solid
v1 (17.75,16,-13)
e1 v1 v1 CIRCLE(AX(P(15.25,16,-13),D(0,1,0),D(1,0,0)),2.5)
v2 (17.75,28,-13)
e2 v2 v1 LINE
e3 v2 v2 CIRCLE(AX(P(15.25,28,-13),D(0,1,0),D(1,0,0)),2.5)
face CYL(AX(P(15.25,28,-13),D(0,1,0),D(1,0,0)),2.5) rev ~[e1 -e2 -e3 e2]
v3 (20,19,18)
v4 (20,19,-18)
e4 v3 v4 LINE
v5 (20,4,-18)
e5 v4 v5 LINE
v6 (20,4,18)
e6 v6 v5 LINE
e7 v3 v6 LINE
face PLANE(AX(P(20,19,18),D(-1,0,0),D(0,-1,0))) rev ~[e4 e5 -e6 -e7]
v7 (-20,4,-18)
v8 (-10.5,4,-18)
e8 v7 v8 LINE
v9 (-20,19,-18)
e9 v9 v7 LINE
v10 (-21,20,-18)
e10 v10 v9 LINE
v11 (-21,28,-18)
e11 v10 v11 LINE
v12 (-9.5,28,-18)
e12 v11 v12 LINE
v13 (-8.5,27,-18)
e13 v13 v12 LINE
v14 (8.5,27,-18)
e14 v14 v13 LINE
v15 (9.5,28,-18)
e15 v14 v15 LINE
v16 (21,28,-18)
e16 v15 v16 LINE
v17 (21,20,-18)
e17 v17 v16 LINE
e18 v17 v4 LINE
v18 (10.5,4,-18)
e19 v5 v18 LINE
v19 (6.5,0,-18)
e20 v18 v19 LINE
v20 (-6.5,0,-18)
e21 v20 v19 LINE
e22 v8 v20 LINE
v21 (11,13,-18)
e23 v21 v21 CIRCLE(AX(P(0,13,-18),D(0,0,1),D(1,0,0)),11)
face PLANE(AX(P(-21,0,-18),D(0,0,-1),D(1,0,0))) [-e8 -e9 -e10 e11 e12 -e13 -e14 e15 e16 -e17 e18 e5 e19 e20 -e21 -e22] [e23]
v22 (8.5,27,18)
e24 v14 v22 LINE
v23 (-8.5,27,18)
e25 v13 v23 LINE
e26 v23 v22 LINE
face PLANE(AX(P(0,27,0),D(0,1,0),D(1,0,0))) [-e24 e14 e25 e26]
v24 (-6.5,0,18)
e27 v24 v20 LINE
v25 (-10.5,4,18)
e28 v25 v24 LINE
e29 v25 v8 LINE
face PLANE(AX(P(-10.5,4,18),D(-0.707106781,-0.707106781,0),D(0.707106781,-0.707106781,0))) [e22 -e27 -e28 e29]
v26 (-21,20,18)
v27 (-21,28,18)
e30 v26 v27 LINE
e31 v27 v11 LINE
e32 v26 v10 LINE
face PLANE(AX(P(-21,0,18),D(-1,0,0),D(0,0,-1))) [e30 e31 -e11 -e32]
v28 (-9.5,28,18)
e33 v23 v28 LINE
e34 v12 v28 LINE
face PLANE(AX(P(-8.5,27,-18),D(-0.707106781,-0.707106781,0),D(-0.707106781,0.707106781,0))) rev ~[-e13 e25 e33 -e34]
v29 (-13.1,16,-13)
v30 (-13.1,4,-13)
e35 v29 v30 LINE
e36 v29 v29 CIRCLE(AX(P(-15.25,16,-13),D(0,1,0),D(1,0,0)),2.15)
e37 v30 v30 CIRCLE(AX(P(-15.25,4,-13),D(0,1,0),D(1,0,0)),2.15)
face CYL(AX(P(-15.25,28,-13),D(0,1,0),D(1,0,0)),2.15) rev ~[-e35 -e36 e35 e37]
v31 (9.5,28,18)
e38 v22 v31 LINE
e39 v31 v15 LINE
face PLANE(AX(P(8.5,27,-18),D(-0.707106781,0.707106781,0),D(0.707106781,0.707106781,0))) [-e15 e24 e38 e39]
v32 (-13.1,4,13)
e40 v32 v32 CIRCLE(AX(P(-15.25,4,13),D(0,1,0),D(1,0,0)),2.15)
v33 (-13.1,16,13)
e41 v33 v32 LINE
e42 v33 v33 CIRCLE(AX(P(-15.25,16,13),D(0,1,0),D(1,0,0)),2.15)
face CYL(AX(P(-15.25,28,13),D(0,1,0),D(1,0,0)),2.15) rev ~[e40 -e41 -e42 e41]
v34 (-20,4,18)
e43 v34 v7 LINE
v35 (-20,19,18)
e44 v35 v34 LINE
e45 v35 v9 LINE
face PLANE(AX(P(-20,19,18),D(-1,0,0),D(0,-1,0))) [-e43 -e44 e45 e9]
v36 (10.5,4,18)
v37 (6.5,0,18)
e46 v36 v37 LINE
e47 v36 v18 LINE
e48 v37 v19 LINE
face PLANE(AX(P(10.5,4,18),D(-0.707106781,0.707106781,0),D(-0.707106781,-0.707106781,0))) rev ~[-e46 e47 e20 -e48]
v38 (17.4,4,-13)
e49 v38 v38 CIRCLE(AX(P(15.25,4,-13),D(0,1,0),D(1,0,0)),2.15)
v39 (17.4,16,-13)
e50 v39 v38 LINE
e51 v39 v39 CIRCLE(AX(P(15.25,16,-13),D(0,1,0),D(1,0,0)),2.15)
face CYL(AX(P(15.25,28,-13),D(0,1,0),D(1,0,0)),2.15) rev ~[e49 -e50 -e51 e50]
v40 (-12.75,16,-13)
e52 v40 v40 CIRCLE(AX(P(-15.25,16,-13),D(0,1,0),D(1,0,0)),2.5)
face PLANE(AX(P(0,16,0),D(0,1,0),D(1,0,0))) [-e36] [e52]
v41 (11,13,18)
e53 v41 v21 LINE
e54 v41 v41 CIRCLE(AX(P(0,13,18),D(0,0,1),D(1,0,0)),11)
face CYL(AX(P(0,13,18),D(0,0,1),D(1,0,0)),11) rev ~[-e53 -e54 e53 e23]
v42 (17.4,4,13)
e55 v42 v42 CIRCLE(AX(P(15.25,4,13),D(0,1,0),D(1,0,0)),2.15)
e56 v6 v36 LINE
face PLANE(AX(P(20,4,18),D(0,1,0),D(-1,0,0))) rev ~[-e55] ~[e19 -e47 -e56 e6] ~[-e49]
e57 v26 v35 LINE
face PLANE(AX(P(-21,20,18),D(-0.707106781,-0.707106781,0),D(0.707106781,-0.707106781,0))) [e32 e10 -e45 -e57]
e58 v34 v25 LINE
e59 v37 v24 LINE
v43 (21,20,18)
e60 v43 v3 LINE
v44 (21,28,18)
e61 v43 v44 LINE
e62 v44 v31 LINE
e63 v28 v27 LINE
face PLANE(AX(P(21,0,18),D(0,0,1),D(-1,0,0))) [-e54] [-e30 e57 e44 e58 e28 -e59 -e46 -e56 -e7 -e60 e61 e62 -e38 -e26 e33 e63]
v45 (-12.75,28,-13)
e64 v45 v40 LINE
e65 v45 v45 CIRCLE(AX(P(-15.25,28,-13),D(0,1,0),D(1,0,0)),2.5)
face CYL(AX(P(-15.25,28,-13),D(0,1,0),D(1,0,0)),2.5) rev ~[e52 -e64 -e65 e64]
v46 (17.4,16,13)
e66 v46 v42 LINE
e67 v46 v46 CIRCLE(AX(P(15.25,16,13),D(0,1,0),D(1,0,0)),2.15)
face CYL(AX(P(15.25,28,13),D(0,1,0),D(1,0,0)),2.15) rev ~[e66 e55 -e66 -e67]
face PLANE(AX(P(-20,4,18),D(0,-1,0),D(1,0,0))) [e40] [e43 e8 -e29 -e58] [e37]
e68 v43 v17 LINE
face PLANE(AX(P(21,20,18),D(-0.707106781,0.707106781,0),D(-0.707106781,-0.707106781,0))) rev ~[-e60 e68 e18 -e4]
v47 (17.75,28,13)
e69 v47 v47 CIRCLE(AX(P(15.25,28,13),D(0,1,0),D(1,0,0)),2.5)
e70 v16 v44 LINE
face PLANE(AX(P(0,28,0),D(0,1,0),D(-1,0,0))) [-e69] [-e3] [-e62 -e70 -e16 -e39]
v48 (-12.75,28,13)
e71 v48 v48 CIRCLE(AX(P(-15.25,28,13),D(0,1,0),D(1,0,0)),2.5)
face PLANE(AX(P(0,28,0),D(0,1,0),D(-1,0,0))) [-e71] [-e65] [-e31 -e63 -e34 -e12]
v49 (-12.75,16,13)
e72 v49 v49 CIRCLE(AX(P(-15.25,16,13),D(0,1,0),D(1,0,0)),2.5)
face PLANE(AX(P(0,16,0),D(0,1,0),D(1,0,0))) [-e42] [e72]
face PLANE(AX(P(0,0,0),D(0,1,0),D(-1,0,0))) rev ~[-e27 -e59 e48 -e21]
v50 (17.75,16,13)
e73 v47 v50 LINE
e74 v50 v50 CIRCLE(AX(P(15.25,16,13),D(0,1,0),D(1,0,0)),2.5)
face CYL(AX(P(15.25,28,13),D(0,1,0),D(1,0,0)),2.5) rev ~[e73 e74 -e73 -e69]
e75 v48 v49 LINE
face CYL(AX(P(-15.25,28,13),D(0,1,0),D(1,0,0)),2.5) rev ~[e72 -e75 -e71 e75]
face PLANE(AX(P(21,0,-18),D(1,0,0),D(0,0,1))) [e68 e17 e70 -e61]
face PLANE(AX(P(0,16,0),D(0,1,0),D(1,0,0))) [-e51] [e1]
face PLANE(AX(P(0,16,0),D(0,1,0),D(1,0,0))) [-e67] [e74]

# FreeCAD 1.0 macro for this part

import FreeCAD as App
import Part
import Sketcher

V = App.Vector


def add_polygon(sketch, points):
    """Adds a closed chain of lines whose ends are joined by coincident constraints."""
    first, n = sketch.GeometryCount, len(points)
    for a, b in zip(points, points[1:] + points[:1]):
        sketch.addGeometry(Part.LineSegment(App.Vector(*a, 0), App.Vector(*b, 0)), False)
    for i in range(n):
        sketch.addConstraint(Sketcher.Constraint("Coincident", first + i, 2, first + (i + 1) % n, 1))

doc = App.newDocument("Part")
body = doc.addObject("PartDesign::Body", "Body")

# Sketch on XZ plane
sketch1 = body.newObject("Sketcher::SketchObject", "Sketch")
sketch1.AttachmentSupport = (doc.getObject("XZ_Plane"), [""])
sketch1.MapMode = "FlatFace"
add_polygon(sketch1, [(21, -18), (-21, -18), (-21, 18), (21, 18)])  # lines 0-3
sketch1.addConstraint([
    Sketcher.Constraint("Horizontal", 0),
    Sketcher.Constraint("Vertical", 1),
    Sketcher.Constraint("Horizontal", 2),
    Sketcher.Constraint("Vertical", 3),
    Sketcher.Constraint("Symmetric", 0, 2, 2, 2, -1, 1),
    Sketcher.Constraint("DistanceX", 0, 2, 0, 1, 42.0),
    Sketcher.Constraint("DistanceY", 1, 1, 1, 2, 36.0),
])
pad1 = body.newObject("PartDesign::Pad", "Pad")
pad1.Profile = sketch1
pad1.Length = 28
pad1.Reversed = True

# Sketch on XY plane
sketch2 = body.newObject("Sketcher::SketchObject", "Sketch001")
sketch2.AttachmentSupport = (doc.getObject("XY_Plane"), [""])
sketch2.MapMode = "FlatFace"
sketch2.AttachmentOffset = App.Placement(V(0, 0, 18), App.Rotation())
sketch2.addGeometry(Part.Circle(V(0, 13, 0), V(0, 0, 1), 11), False)
sketch2.addConstraint([
    Sketcher.Constraint("PointOnObject", 0, 3, -2),
    Sketcher.Constraint("Diameter", 0, 22.0),
    Sketcher.Constraint("DistanceY", -1, 1, 0, 3, 13.0),
])
pocket1 = body.newObject("PartDesign::Pocket", "Pocket")
pocket1.Profile = sketch2
pocket1.Type = "UpToFirst"

# Sketch on XZ plane
sketch3 = body.newObject("Sketcher::SketchObject", "Sketch002")
sketch3.AttachmentSupport = (doc.getObject("XZ_Plane"), [""])
sketch3.MapMode = "FlatFace"
sketch3.AttachmentOffset = App.Placement(V(0, 0, -28), App.Rotation())
sketch3.addGeometry([
    Part.Circle(V(-15.25, -13, 0), V(0, 0, 1), 2.15),
    Part.Circle(V(-15.25, 13, 0), V(0, 0, 1), 2.15),
    Part.Circle(V(15.25, -13, 0), V(0, 0, 1), 2.15),
    Part.Circle(V(15.25, 13, 0), V(0, 0, 1), 2.15),
], False)
sketch3.addConstraint([
    Sketcher.Constraint("Equal", 0, 1),
    Sketcher.Constraint("Equal", 1, 2),
    Sketcher.Constraint("Equal", 2, 3),
    Sketcher.Constraint("Symmetric", 1, 3, 2, 3, -1, 1),
    Sketcher.Constraint("Symmetric", 0, 3, 3, 3, -1, 1),
    Sketcher.Constraint("Symmetric", 0, 3, 2, 3, -2),
    Sketcher.Constraint("Diameter", 0, 4.3),
    Sketcher.Constraint("DistanceY", 0, 3, 1, 3, 26.0),
    Sketcher.Constraint("DistanceX", 0, 3, 2, 3, 30.5),
])
pocket2 = body.newObject("PartDesign::Pocket", "Pocket001")
pocket2.Profile = sketch3
pocket2.Length = 28
pocket2.Reversed = True

# Sketch on XZ plane
sketch4 = body.newObject("Sketcher::SketchObject", "Sketch003")
sketch4.AttachmentSupport = (doc.getObject("XZ_Plane"), [""])
sketch4.MapMode = "FlatFace"
sketch4.AttachmentOffset = App.Placement(V(0, 0, -28), App.Rotation())
sketch4.addGeometry([
    Part.Circle(V(15.25, 13, 0), V(0, 0, 1), 2.5),  # 0
    Part.Circle(V(15.25, 13, 0), V(0, 0, 1), 2.15),  # 1
    Part.Circle(V(-15.25, 13, 0), V(0, 0, 1), 2.5),  # 2
    Part.Circle(V(-15.25, 13, 0), V(0, 0, 1), 2.15),  # 3
    Part.Circle(V(15.25, -13, 0), V(0, 0, 1), 2.5),  # 4
    Part.Circle(V(-15.25, -13, 0), V(0, 0, 1), 2.5),  # 5
    Part.Circle(V(-15.25, -13, 0), V(0, 0, 1), 2.15),  # 6
], False)
sketch4.addConstraint([
    Sketcher.Constraint("Coincident", 1, 3, 0, 3),
    Sketcher.Constraint("Coincident", 3, 3, 2, 3),
    Sketcher.Constraint("Coincident", 6, 3, 5, 3),
    Sketcher.Constraint("Equal", 0, 2),
    Sketcher.Constraint("Equal", 1, 3),
    Sketcher.Constraint("Equal", 2, 4),
    Sketcher.Constraint("Equal", 4, 5),
    Sketcher.Constraint("Equal", 3, 6),
    Sketcher.Constraint("Symmetric", 2, 3, 4, 3, -1, 1),
    Sketcher.Constraint("Symmetric", 0, 3, 5, 3, -1, 1),
    Sketcher.Constraint("Symmetric", 0, 3, 2, 3, -2),
    Sketcher.Constraint("Diameter", 0, 5.0),
    Sketcher.Constraint("Diameter", 1, 4.3),
    Sketcher.Constraint("DistanceY", -1, 1, 0, 3, 13.0),
    Sketcher.Constraint("DistanceX", 2, 3, 0, 3, 30.5),
])
pocket3 = body.newObject("PartDesign::Pocket", "Pocket002")
pocket3.Profile = sketch4
pocket3.Length = 12
pocket3.Reversed = True

# Sketch on XY plane
sketch5 = body.newObject("Sketcher::SketchObject", "Sketch004")
sketch5.AttachmentSupport = (doc.getObject("XY_Plane"), [""])
sketch5.MapMode = "FlatFace"
sketch5.AttachmentOffset = App.Placement(V(0, 0, 18), App.Rotation())
add_polygon(sketch5, [(-21, 20), (-21, 0), (-6.5, 0), (-10.5, 4), (-20, 4), (-20, 19)])  # lines 0-5
add_polygon(sketch5, [(6.5, 0), (21, 0), (21, 20), (20, 19), (20, 4), (10.5, 4)])  # lines 6-11
sketch5.addConstraint([
    Sketcher.Constraint("Vertical", 0),
    Sketcher.Constraint("Horizontal", 1),
    Sketcher.Constraint("Horizontal", 3),
    Sketcher.Constraint("Vertical", 4),
    Sketcher.Constraint("Horizontal", 6),
    Sketcher.Constraint("Vertical", 7),
    Sketcher.Constraint("Vertical", 9),
    Sketcher.Constraint("Horizontal", 10),
    Sketcher.Constraint("Symmetric", 0, 2, 6, 2, -1, 1),
    Sketcher.Constraint("Symmetric", 4, 2, 8, 2, -2),
    Sketcher.Constraint("Symmetric", 2, 2, 10, 2, -2),
    Sketcher.Constraint("Symmetric", 1, 2, 11, 2, -2),
    Sketcher.Constraint("Parallel", 2, 5),
    Sketcher.Constraint("Perpendicular", 5, 8),
    Sketcher.Constraint("Parallel", 8, 11),
    Sketcher.Constraint("DistanceX", 3, 2, 3, 1, 9.5),
    Sketcher.Constraint("DistanceY", 0, 2, 0, 1, 20.0),
    Sketcher.Constraint("DistanceY", 4, 1, 4, 2, 15.0),
    Sketcher.Constraint("DistanceX", 0, 2, -1, 1, 21.0),
    Sketcher.Constraint("DistanceY", -1, 1, 2, 2, 4.0),
])
pocket4 = body.newObject("PartDesign::Pocket", "Pocket003")
pocket4.Profile = sketch5
pocket4.Length = 36

# Sketch on XZ plane
sketch6 = body.newObject("Sketcher::SketchObject", "Sketch005")
sketch6.AttachmentSupport = (doc.getObject("XZ_Plane"), [""])
sketch6.MapMode = "FlatFace"
sketch6.AttachmentOffset = App.Placement(V(0, 0, -28), App.Rotation())
add_polygon(sketch6, [(-9.5, 18), (9.5, 18), (9.5, -18), (-9.5, -18)])  # lines 0-3
sketch6.addConstraint([
    Sketcher.Constraint("Horizontal", 0),
    Sketcher.Constraint("Vertical", 1),
    Sketcher.Constraint("Horizontal", 2),
    Sketcher.Constraint("Vertical", 3),
    Sketcher.Constraint("Symmetric", 0, 2, 2, 2, -1, 1),
    Sketcher.Constraint("DistanceX", 0, 1, 0, 2, 19.0),
    Sketcher.Constraint("DistanceY", 1, 2, 1, 1, 36.0),
])
pocket5 = body.newObject("PartDesign::Pocket", "Pocket004")
pocket5.Profile = sketch6
pocket5.Length = 1
pocket5.Reversed = True

# Sketch on XY plane
sketch7 = body.newObject("Sketcher::SketchObject", "Sketch006")
sketch7.AttachmentSupport = (doc.getObject("XY_Plane"), [""])
sketch7.MapMode = "FlatFace"
sketch7.AttachmentOffset = App.Placement(V(0, 0, -18), App.Rotation())
add_polygon(sketch7, [(9.5, 27), (8.5, 27), (9.5, 28)])  # lines 0-2
add_polygon(sketch7, [(-8.5, 27), (-9.5, 27), (-9.5, 28)])  # lines 3-5
sketch7.addConstraint([
    Sketcher.Constraint("Horizontal", 0),
    Sketcher.Constraint("Vertical", 2),
    Sketcher.Constraint("Horizontal", 3),
    Sketcher.Constraint("Vertical", 4),
    Sketcher.Constraint("Symmetric", 2, 2, 3, 2, -2),
    Sketcher.Constraint("Perpendicular", 1, 5),
    Sketcher.Constraint("Horizontal", 1, 2, 4, 2),
    Sketcher.Constraint("Equal", 0, 3),
    Sketcher.Constraint("DistanceX", 0, 2, 0, 1, 1.0),
    Sketcher.Constraint("DistanceY", -1, 1, 0, 2, 27.0),
    Sketcher.Constraint("DistanceX", 3, 2, 0, 2, 18.0),
])
pad2 = body.newObject("PartDesign::Pad", "Pad001")
pad2.Profile = sketch7
pad2.Length = 36

doc.recompute()
